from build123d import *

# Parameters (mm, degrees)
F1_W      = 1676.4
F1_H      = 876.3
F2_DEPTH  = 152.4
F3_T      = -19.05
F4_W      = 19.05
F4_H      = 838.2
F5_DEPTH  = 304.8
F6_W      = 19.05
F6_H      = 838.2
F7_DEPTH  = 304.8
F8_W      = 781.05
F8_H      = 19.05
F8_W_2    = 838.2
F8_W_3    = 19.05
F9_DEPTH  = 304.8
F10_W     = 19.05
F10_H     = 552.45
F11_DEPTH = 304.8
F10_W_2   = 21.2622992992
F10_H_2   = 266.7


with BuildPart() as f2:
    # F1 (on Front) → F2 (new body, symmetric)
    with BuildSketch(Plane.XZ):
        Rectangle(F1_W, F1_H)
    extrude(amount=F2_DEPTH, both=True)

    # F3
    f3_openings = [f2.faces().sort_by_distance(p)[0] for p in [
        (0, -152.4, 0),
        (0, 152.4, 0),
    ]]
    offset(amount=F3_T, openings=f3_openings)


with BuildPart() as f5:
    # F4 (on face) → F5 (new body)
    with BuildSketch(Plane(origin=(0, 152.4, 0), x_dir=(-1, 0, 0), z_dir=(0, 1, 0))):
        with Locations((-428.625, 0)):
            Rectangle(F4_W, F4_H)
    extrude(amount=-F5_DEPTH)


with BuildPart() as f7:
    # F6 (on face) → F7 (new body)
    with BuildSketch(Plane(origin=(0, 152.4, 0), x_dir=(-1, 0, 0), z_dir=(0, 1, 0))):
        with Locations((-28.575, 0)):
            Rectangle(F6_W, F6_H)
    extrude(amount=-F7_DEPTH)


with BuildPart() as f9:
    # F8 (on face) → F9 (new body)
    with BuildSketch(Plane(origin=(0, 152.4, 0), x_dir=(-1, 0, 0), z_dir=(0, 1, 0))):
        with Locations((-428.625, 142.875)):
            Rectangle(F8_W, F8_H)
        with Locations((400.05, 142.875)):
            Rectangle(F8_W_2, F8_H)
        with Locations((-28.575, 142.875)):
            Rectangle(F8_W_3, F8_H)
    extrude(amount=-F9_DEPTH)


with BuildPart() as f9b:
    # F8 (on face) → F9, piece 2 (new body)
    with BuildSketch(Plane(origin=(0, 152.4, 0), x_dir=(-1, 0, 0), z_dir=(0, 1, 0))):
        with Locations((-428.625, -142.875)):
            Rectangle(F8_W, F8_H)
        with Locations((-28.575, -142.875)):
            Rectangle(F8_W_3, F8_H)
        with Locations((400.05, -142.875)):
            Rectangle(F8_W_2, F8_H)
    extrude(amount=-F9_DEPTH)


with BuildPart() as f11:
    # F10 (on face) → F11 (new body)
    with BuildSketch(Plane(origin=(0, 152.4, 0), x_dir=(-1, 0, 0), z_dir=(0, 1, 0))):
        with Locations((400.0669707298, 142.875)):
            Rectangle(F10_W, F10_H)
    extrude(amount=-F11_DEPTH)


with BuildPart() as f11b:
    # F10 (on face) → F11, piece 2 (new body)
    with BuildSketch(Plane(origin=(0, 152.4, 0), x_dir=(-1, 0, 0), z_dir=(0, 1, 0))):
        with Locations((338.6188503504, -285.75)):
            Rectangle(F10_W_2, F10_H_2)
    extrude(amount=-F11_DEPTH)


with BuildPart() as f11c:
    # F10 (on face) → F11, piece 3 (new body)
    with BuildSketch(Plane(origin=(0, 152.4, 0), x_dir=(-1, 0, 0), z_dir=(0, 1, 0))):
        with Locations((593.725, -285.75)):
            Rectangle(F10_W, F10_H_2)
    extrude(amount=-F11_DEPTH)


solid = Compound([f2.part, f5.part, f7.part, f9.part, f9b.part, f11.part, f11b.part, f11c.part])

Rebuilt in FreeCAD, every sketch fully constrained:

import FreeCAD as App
import Part
import Sketcher
from FreeCAD import Vector
Q = App.Units.Quantity


def faces_at(feature, points):
    """Names of the faces that lie closest to the given points."""
    faces = feature.Shape.Faces
    near = lambda p: min(range(len(faces)), key=lambda i: faces[i].distToShape(Part.Vertex(*p))[0])
    return sorted({f"Face{near(p) + 1}" for p in points})

doc = App.newDocument("Part")
body = doc.addObject("PartDesign::Body", "Body")

# Sketch on XZ plane
sketch1 = body.newObject("Sketcher::SketchObject", "Sketch")
sketch1.AttachmentSupport = (doc.getObject("XZ_Plane"), [""])
sketch1.MapMode = "FlatFace"
sketch1.addGeometry([
    Part.LineSegment(Vector(-838, 438, 0), Vector(-838, -438, 0)),
    Part.LineSegment(Vector(-838, -438, 0), Vector(838, -438, 0)),
    Part.LineSegment(Vector(838, -438, 0), Vector(838, 438, 0)),
    Part.LineSegment(Vector(838, 438, 0), Vector(-838, 438, 0)),
], False)
sketch1.addConstraint([
    Sketcher.Constraint("Coincident", 0, 2, 1, 1),
    Sketcher.Constraint("Coincident", 1, 2, 2, 1),
    Sketcher.Constraint("Coincident", 2, 2, 3, 1),
    Sketcher.Constraint("Coincident", 3, 2, 0, 1),
    Sketcher.Constraint("Vertical", 0),
    Sketcher.Constraint("Horizontal", 1),
    Sketcher.Constraint("Vertical", 2),
    Sketcher.Constraint("Horizontal", 3),
    Sketcher.Constraint("Symmetric", 0, 2, 2, 2, -1, 1),
    Sketcher.Constraint("DistanceX", 1, 1, 1, 2, Q("66 in")),
    Sketcher.Constraint("DistanceY", 0, 2, 0, 1, Q("34.5 in")),
])
pad1 = body.newObject("PartDesign::Pad", "Pad")
pad1.Profile = sketch1
pad1.Length = Q("12 in")
pad1.Midplane = True
doc.recompute()

thickness = body.newObject("PartDesign::Thickness", "Thickness")
thickness.Base = (pad1, faces_at(pad1, [(0, -152.4, 0), (0, 152.4, 0)]))
thickness.Value = Q("0.75 in")
thickness.Reversed = True
thickness.Join = "Arc"
body2 = doc.addObject("PartDesign::Body", "Body001")

# Sketch on XZ plane
sketch2 = body2.newObject("Sketcher::SketchObject", "Sketch001")
sketch2.AttachmentSupport = (doc.getObject("XZ_Plane001"), [""])
sketch2.MapMode = "FlatFace"
sketch2.AttachmentOffset = App.Placement(Vector(0, 0, -6 * 25.4), App.Rotation())
sketch2.addGeometry([
    Part.LineSegment(Vector(438, 419, 0), Vector(438, -419, 0)),
    Part.LineSegment(Vector(438, -419, 0), Vector(419, -419, 0)),
    Part.LineSegment(Vector(419, -419, 0), Vector(419, 419, 0)),
    Part.LineSegment(Vector(419, 419, 0), Vector(438, 419, 0)),
], False)
sketch2.addConstraint([
    Sketcher.Constraint("Coincident", 0, 2, 1, 1),
    Sketcher.Constraint("Coincident", 1, 2, 2, 1),
    Sketcher.Constraint("Coincident", 2, 2, 3, 1),
    Sketcher.Constraint("Coincident", 3, 2, 0, 1),
    Sketcher.Constraint("Vertical", 0),
    Sketcher.Constraint("Horizontal", 1),
    Sketcher.Constraint("Vertical", 2),
    Sketcher.Constraint("Horizontal", 3),
    Sketcher.Constraint("DistanceY", 0, 2, 0, 1, Q("33 in")),
    Sketcher.Constraint("DistanceX", 1, 2, 1, 1, Q("0.75 in")),
    Sketcher.Constraint("DistanceY", 0, 2, -1, 1, Q("16.5 in")),
    Sketcher.Constraint("DistanceX", -1, 1, 1, 2, Q("16.5 in")),
])
pad2 = body2.newObject("PartDesign::Pad", "Pad001")
pad2.Profile = sketch2
pad2.Length = Q("12 in")
body3 = doc.addObject("PartDesign::Body", "Body002")

# Sketch on XZ plane
sketch3 = body3.newObject("Sketcher::SketchObject", "Sketch002")
sketch3.AttachmentSupport = (doc.getObject("XZ_Plane002"), [""])
sketch3.MapMode = "FlatFace"
sketch3.AttachmentOffset = App.Placement(Vector(0, 0, -6 * 25.4), App.Rotation())
sketch3.addGeometry([
    Part.LineSegment(Vector(38, 419, 0), Vector(38, -419, 0)),
    Part.LineSegment(Vector(38, -419, 0), Vector(19, -419, 0)),
    Part.LineSegment(Vector(19, -419, 0), Vector(19, 419, 0)),
    Part.LineSegment(Vector(19, 419, 0), Vector(38, 419, 0)),
], False)
sketch3.addConstraint([
    Sketcher.Constraint("Coincident", 0, 2, 1, 1),
    Sketcher.Constraint("Coincident", 1, 2, 2, 1),
    Sketcher.Constraint("Coincident", 2, 2, 3, 1),
    Sketcher.Constraint("Coincident", 3, 2, 0, 1),
    Sketcher.Constraint("Vertical", 0),
    Sketcher.Constraint("Horizontal", 1),
    Sketcher.Constraint("Vertical", 2),
    Sketcher.Constraint("Horizontal", 3),
    Sketcher.Constraint("DistanceY", 0, 2, 0, 1, Q("33 in")),
    Sketcher.Constraint("DistanceX", 1, 2, 1, 1, Q("0.75 in")),
    Sketcher.Constraint("DistanceX", -1, 1, 0, 2, Q("1.5 in")),
    Sketcher.Constraint("DistanceY", 0, 2, -1, 1, Q("16.5 in")),
])
pad3 = body3.newObject("PartDesign::Pad", "Pad002")
pad3.Profile = sketch3
pad3.Length = Q("12 in")
body4 = doc.addObject("PartDesign::Body", "Body003")

# Sketch on XZ plane
sketch4 = body4.newObject("Sketcher::SketchObject", "Sketch003")
sketch4.AttachmentSupport = (doc.getObject("XZ_Plane003"), [""])
sketch4.MapMode = "FlatFace"
sketch4.AttachmentOffset = App.Placement(Vector(0, 0, -6 * 25.4), App.Rotation())
sketch4.addGeometry([
    Part.LineSegment(Vector(819, 152, 0), Vector(819, 133, 0)),
    Part.LineSegment(Vector(819, 133, 0), Vector(-819, 133, 0)),
    Part.LineSegment(Vector(-819, 133, 0), Vector(-819, 152, 0)),
    Part.LineSegment(Vector(-819, 152, 0), Vector(819, 152, 0)),
], False)
sketch4.addConstraint([
    Sketcher.Constraint("Coincident", 0, 2, 1, 1),
    Sketcher.Constraint("Coincident", 1, 2, 2, 1),
    Sketcher.Constraint("Coincident", 2, 2, 3, 1),
    Sketcher.Constraint("Coincident", 3, 2, 0, 1),
    Sketcher.Constraint("Vertical", 0),
    Sketcher.Constraint("Horizontal", 1),
    Sketcher.Constraint("Vertical", 2),
    Sketcher.Constraint("Horizontal", 3),
    Sketcher.Constraint("DistanceX", 1, 2, 1, 1, Q("64.5 in")),
    Sketcher.Constraint("DistanceY", -1, 1, 2, 2, Q("6 in")),
    Sketcher.Constraint("DistanceY", 0, 2, 0, 1, Q("0.75 in")),
    Sketcher.Constraint("DistanceX", -1, 1, 0, 2, Q("32.25 in")),
])
pad4 = body4.newObject("PartDesign::Pad", "Pad003")
pad4.Profile = sketch4
pad4.Length = Q("12 in")
body5 = doc.addObject("PartDesign::Body", "Body004")

# Sketch on XZ plane
sketch5 = body5.newObject("Sketcher::SketchObject", "Sketch004")
sketch5.AttachmentSupport = (doc.getObject("XZ_Plane004"), [""])
sketch5.MapMode = "FlatFace"
sketch5.AttachmentOffset = App.Placement(Vector(0, 0, -6 * 25.4), App.Rotation())
sketch5.addGeometry([
    Part.LineSegment(Vector(819, -133, 0), Vector(819, -152, 0)),
    Part.LineSegment(Vector(819, -152, 0), Vector(-819, -152, 0)),
    Part.LineSegment(Vector(-819, -152, 0), Vector(-819, -133, 0)),
    Part.LineSegment(Vector(-819, -133, 0), Vector(819, -133, 0)),
], False)
sketch5.addConstraint([
    Sketcher.Constraint("Coincident", 0, 2, 1, 1),
    Sketcher.Constraint("Coincident", 1, 2, 2, 1),
    Sketcher.Constraint("Coincident", 2, 2, 3, 1),
    Sketcher.Constraint("Coincident", 3, 2, 0, 1),
    Sketcher.Constraint("Vertical", 0),
    Sketcher.Constraint("Horizontal", 1),
    Sketcher.Constraint("Vertical", 2),
    Sketcher.Constraint("Horizontal", 3),
    Sketcher.Constraint("DistanceX", 1, 2, 1, 1, Q("64.5 in")),
    Sketcher.Constraint("DistanceY", 0, 2, -1, 1, Q("6 in")),
    Sketcher.Constraint("DistanceY", 0, 2, 0, 1, Q("0.75 in")),
    Sketcher.Constraint("DistanceX", -1, 1, 0, 2, Q("32.25 in")),
])
pad5 = body5.newObject("PartDesign::Pad", "Pad004")
pad5.Profile = sketch5
pad5.Length = Q("12 in")
body6 = doc.addObject("PartDesign::Body", "Body005")

# Sketch on XZ plane
sketch6 = body6.newObject("Sketcher::SketchObject", "Sketch005")
sketch6.AttachmentSupport = (doc.getObject("XZ_Plane005"), [""])
sketch6.MapMode = "FlatFace"
sketch6.AttachmentOffset = App.Placement(Vector(0, 0, -6 * 25.4), App.Rotation())
sketch6.addGeometry([
    Part.LineSegment(Vector(-391, 419, 0), Vector(-391, -133, 0)),
    Part.LineSegment(Vector(-391, -133, 0), Vector(-410, -133, 0)),
    Part.LineSegment(Vector(-410, -133, 0), Vector(-410, 419, 0)),
    Part.LineSegment(Vector(-410, 419, 0), Vector(-391, 419, 0)),
], False)
sketch6.addConstraint([
    Sketcher.Constraint("Coincident", 0, 2, 1, 1),
    Sketcher.Constraint("Coincident", 1, 2, 2, 1),
    Sketcher.Constraint("Coincident", 2, 2, 3, 1),
    Sketcher.Constraint("Coincident", 3, 2, 0, 1),
    Sketcher.Constraint("Vertical", 0),
    Sketcher.Constraint("Horizontal", 1),
    Sketcher.Constraint("Vertical", 2),
    Sketcher.Constraint("Horizontal", 3),
    Sketcher.Constraint("DistanceX", 1, 2, 1, 1, Q("0.75 in")),
    Sketcher.Constraint("DistanceY", 0, 2, 0, 1, Q("21.75 in")),
    Sketcher.Constraint("DistanceY", -1, 1, 2, 2, Q("16.5 in")),
    Sketcher.Constraint("DistanceX", 0, 2, -1, 1, Q("390.541971 mm")),
])
pad6 = body6.newObject("PartDesign::Pad", "Pad005")
pad6.Profile = sketch6
pad6.Length = Q("12 in")
body7 = doc.addObject("PartDesign::Body", "Body006")

# Sketch on XZ plane
sketch7 = body7.newObject("Sketcher::SketchObject", "Sketch006")
sketch7.AttachmentSupport = (doc.getObject("XZ_Plane006"), [""])
sketch7.MapMode = "FlatFace"
sketch7.AttachmentOffset = App.Placement(Vector(0, 0, -6 * 25.4), App.Rotation())
sketch7.addGeometry([
    Part.LineSegment(Vector(-328, -152, 0), Vector(-328, -419, 0)),
    Part.LineSegment(Vector(-328, -419, 0), Vector(-349, -419, 0)),
    Part.LineSegment(Vector(-349, -419, 0), Vector(-349, -152, 0)),
    Part.LineSegment(Vector(-349, -152, 0), Vector(-328, -152, 0)),
], False)
sketch7.addConstraint([
    Sketcher.Constraint("Coincident", 0, 2, 1, 1),
    Sketcher.Constraint("Coincident", 1, 2, 2, 1),
    Sketcher.Constraint("Coincident", 2, 2, 3, 1),
    Sketcher.Constraint("Coincident", 3, 2, 0, 1),
    Sketcher.Constraint("Vertical", 0),
    Sketcher.Constraint("Horizontal", 1),
    Sketcher.Constraint("Vertical", 2),
    Sketcher.Constraint("Horizontal", 3),
    Sketcher.Constraint("DistanceY", 0, 2, 0, 1, Q("10.5 in")),
    Sketcher.Constraint("DistanceY", 2, 2, -1, 1, Q("6 in")),
    Sketcher.Constraint("DistanceX", 1, 2, -1, 1, Q("13.75 in")),
    Sketcher.Constraint("DistanceX", 1, 2, 1, 1, Q("21.262299 mm")),
])
pad7 = body7.newObject("PartDesign::Pad", "Pad006")
pad7.Profile = sketch7
pad7.Length = Q("12 in")
body8 = doc.addObject("PartDesign::Body", "Body007")

# Sketch on XZ plane
sketch8 = body8.newObject("Sketcher::SketchObject", "Sketch007")
sketch8.AttachmentSupport = (doc.getObject("XZ_Plane007"), [""])
sketch8.MapMode = "FlatFace"
sketch8.AttachmentOffset = App.Placement(Vector(0, 0, -6 * 25.4), App.Rotation())
sketch8.addGeometry([
    Part.LineSegment(Vector(-584, -152, 0), Vector(-584, -419, 0)),
    Part.LineSegment(Vector(-584, -419, 0), Vector(-603, -419, 0)),
    Part.LineSegment(Vector(-603, -419, 0), Vector(-603, -152, 0)),
    Part.LineSegment(Vector(-603, -152, 0), Vector(-584, -152, 0)),
], False)
sketch8.addConstraint([
    Sketcher.Constraint("Coincident", 0, 2, 1, 1),
    Sketcher.Constraint("Coincident", 1, 2, 2, 1),
    Sketcher.Constraint("Coincident", 2, 2, 3, 1),
    Sketcher.Constraint("Coincident", 3, 2, 0, 1),
    Sketcher.Constraint("Vertical", 0),
    Sketcher.Constraint("Horizontal", 1),
    Sketcher.Constraint("Vertical", 2),
    Sketcher.Constraint("Horizontal", 3),
    Sketcher.Constraint("DistanceY", 0, 2, 0, 1, Q("10.5 in")),
    Sketcher.Constraint("DistanceX", 0, 2, -1, 1, Q("23 in")),
    Sketcher.Constraint("DistanceY", 2, 2, -1, 1, Q("6 in")),
    Sketcher.Constraint("DistanceX", 1, 2, 1, 1, Q("0.75 in")),
])
pad8 = body8.newObject("PartDesign::Pad", "Pad007")
pad8.Profile = sketch8
pad8.Length = Q("12 in")

doc.recompute()
